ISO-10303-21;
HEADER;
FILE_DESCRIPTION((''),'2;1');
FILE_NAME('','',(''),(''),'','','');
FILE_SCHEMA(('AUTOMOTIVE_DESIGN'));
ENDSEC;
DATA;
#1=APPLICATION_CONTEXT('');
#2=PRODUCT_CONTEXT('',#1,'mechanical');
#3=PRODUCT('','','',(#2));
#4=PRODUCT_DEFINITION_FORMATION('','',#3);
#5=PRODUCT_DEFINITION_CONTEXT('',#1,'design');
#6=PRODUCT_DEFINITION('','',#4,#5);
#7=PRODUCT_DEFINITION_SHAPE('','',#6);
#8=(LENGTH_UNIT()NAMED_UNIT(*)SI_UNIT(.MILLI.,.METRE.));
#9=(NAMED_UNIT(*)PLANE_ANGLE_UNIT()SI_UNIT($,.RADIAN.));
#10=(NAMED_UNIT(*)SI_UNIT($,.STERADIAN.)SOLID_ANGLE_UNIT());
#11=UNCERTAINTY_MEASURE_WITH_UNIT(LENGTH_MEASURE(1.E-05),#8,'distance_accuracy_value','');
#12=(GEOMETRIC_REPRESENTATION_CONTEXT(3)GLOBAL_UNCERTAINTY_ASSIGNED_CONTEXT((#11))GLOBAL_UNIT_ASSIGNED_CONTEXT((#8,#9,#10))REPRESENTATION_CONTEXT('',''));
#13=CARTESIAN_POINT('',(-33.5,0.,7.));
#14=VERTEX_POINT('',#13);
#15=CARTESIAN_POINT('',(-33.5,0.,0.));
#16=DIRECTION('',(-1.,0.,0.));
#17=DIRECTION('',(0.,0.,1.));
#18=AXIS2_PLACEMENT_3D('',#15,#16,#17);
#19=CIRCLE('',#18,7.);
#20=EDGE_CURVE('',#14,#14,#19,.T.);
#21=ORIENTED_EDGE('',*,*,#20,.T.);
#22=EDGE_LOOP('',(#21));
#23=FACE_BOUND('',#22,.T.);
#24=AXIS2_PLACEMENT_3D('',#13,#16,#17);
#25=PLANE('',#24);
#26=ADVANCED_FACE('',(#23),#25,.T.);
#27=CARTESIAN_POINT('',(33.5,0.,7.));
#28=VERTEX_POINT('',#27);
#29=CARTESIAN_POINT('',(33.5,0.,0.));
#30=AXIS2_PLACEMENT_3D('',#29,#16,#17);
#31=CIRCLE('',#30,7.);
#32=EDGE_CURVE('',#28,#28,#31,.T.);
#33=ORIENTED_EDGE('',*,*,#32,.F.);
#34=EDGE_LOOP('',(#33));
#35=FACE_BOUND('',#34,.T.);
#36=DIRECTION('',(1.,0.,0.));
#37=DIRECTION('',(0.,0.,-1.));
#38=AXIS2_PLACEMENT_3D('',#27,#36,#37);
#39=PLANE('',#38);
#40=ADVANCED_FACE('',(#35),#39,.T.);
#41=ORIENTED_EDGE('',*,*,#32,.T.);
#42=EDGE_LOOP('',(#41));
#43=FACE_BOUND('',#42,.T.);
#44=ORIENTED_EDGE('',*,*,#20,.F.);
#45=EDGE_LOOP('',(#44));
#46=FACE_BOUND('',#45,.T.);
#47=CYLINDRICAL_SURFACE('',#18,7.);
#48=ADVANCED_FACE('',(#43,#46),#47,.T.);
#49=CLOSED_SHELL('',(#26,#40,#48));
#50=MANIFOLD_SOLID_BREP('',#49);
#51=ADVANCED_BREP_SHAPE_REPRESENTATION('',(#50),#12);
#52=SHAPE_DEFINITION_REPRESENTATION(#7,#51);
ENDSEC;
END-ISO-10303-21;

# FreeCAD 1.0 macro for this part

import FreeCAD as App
import Part
import Sketcher
from FreeCAD import Vector
Q = App.Units.Quantity

doc = App.newDocument("Part")
body = doc.addObject("PartDesign::Body", "Body")

# Sketch on XZ plane
sketch1 = body.newObject("Sketcher::SketchObject", "Sketch")
sketch1.AttachmentSupport = (doc.getObject("XZ_Plane"), [""])
sketch1.MapMode = "FlatFace"
sketch1.addGeometry([
    Part.LineSegment(Vector(-34, 0, 0), Vector(-34, 7, 0)),
    Part.LineSegment(Vector(-34, 7, 0), Vector(34, 7, 0)),
    Part.LineSegment(Vector(34, 7, 0), Vector(34, 0, 0)),
    Part.LineSegment(Vector(34, 0, 0), Vector(-34, 0, 0)),
], False)
sketch1.addConstraint([
    Sketcher.Constraint("Coincident", 0, 2, 1, 1),
    Sketcher.Constraint("Coincident", 1, 2, 2, 1),
    Sketcher.Constraint("Coincident", 2, 2, 3, 1),
    Sketcher.Constraint("Coincident", 3, 2, 0, 1),
    Sketcher.Constraint("Vertical", 0),
    Sketcher.Constraint("Horizontal", 1),
    Sketcher.Constraint("Vertical", 2),
    Sketcher.Constraint("Horizontal", 3),
    Sketcher.Constraint("Symmetric", 2, 2, 3, 2, -1, 1),
    Sketcher.Constraint("DistanceX", 1, 1, 1, 2, Q("67 mm")),
    Sketcher.Constraint("DistanceY", 0, 1, 0, 2, Q("7 mm")),
])
revolution = body.newObject("PartDesign::Revolution", "Revolution")
revolution.Profile = sketch1
revolution.ReferenceAxis = (sketch1, ["H_Axis"])
revolution.Angle = 360

doc.recompute()
